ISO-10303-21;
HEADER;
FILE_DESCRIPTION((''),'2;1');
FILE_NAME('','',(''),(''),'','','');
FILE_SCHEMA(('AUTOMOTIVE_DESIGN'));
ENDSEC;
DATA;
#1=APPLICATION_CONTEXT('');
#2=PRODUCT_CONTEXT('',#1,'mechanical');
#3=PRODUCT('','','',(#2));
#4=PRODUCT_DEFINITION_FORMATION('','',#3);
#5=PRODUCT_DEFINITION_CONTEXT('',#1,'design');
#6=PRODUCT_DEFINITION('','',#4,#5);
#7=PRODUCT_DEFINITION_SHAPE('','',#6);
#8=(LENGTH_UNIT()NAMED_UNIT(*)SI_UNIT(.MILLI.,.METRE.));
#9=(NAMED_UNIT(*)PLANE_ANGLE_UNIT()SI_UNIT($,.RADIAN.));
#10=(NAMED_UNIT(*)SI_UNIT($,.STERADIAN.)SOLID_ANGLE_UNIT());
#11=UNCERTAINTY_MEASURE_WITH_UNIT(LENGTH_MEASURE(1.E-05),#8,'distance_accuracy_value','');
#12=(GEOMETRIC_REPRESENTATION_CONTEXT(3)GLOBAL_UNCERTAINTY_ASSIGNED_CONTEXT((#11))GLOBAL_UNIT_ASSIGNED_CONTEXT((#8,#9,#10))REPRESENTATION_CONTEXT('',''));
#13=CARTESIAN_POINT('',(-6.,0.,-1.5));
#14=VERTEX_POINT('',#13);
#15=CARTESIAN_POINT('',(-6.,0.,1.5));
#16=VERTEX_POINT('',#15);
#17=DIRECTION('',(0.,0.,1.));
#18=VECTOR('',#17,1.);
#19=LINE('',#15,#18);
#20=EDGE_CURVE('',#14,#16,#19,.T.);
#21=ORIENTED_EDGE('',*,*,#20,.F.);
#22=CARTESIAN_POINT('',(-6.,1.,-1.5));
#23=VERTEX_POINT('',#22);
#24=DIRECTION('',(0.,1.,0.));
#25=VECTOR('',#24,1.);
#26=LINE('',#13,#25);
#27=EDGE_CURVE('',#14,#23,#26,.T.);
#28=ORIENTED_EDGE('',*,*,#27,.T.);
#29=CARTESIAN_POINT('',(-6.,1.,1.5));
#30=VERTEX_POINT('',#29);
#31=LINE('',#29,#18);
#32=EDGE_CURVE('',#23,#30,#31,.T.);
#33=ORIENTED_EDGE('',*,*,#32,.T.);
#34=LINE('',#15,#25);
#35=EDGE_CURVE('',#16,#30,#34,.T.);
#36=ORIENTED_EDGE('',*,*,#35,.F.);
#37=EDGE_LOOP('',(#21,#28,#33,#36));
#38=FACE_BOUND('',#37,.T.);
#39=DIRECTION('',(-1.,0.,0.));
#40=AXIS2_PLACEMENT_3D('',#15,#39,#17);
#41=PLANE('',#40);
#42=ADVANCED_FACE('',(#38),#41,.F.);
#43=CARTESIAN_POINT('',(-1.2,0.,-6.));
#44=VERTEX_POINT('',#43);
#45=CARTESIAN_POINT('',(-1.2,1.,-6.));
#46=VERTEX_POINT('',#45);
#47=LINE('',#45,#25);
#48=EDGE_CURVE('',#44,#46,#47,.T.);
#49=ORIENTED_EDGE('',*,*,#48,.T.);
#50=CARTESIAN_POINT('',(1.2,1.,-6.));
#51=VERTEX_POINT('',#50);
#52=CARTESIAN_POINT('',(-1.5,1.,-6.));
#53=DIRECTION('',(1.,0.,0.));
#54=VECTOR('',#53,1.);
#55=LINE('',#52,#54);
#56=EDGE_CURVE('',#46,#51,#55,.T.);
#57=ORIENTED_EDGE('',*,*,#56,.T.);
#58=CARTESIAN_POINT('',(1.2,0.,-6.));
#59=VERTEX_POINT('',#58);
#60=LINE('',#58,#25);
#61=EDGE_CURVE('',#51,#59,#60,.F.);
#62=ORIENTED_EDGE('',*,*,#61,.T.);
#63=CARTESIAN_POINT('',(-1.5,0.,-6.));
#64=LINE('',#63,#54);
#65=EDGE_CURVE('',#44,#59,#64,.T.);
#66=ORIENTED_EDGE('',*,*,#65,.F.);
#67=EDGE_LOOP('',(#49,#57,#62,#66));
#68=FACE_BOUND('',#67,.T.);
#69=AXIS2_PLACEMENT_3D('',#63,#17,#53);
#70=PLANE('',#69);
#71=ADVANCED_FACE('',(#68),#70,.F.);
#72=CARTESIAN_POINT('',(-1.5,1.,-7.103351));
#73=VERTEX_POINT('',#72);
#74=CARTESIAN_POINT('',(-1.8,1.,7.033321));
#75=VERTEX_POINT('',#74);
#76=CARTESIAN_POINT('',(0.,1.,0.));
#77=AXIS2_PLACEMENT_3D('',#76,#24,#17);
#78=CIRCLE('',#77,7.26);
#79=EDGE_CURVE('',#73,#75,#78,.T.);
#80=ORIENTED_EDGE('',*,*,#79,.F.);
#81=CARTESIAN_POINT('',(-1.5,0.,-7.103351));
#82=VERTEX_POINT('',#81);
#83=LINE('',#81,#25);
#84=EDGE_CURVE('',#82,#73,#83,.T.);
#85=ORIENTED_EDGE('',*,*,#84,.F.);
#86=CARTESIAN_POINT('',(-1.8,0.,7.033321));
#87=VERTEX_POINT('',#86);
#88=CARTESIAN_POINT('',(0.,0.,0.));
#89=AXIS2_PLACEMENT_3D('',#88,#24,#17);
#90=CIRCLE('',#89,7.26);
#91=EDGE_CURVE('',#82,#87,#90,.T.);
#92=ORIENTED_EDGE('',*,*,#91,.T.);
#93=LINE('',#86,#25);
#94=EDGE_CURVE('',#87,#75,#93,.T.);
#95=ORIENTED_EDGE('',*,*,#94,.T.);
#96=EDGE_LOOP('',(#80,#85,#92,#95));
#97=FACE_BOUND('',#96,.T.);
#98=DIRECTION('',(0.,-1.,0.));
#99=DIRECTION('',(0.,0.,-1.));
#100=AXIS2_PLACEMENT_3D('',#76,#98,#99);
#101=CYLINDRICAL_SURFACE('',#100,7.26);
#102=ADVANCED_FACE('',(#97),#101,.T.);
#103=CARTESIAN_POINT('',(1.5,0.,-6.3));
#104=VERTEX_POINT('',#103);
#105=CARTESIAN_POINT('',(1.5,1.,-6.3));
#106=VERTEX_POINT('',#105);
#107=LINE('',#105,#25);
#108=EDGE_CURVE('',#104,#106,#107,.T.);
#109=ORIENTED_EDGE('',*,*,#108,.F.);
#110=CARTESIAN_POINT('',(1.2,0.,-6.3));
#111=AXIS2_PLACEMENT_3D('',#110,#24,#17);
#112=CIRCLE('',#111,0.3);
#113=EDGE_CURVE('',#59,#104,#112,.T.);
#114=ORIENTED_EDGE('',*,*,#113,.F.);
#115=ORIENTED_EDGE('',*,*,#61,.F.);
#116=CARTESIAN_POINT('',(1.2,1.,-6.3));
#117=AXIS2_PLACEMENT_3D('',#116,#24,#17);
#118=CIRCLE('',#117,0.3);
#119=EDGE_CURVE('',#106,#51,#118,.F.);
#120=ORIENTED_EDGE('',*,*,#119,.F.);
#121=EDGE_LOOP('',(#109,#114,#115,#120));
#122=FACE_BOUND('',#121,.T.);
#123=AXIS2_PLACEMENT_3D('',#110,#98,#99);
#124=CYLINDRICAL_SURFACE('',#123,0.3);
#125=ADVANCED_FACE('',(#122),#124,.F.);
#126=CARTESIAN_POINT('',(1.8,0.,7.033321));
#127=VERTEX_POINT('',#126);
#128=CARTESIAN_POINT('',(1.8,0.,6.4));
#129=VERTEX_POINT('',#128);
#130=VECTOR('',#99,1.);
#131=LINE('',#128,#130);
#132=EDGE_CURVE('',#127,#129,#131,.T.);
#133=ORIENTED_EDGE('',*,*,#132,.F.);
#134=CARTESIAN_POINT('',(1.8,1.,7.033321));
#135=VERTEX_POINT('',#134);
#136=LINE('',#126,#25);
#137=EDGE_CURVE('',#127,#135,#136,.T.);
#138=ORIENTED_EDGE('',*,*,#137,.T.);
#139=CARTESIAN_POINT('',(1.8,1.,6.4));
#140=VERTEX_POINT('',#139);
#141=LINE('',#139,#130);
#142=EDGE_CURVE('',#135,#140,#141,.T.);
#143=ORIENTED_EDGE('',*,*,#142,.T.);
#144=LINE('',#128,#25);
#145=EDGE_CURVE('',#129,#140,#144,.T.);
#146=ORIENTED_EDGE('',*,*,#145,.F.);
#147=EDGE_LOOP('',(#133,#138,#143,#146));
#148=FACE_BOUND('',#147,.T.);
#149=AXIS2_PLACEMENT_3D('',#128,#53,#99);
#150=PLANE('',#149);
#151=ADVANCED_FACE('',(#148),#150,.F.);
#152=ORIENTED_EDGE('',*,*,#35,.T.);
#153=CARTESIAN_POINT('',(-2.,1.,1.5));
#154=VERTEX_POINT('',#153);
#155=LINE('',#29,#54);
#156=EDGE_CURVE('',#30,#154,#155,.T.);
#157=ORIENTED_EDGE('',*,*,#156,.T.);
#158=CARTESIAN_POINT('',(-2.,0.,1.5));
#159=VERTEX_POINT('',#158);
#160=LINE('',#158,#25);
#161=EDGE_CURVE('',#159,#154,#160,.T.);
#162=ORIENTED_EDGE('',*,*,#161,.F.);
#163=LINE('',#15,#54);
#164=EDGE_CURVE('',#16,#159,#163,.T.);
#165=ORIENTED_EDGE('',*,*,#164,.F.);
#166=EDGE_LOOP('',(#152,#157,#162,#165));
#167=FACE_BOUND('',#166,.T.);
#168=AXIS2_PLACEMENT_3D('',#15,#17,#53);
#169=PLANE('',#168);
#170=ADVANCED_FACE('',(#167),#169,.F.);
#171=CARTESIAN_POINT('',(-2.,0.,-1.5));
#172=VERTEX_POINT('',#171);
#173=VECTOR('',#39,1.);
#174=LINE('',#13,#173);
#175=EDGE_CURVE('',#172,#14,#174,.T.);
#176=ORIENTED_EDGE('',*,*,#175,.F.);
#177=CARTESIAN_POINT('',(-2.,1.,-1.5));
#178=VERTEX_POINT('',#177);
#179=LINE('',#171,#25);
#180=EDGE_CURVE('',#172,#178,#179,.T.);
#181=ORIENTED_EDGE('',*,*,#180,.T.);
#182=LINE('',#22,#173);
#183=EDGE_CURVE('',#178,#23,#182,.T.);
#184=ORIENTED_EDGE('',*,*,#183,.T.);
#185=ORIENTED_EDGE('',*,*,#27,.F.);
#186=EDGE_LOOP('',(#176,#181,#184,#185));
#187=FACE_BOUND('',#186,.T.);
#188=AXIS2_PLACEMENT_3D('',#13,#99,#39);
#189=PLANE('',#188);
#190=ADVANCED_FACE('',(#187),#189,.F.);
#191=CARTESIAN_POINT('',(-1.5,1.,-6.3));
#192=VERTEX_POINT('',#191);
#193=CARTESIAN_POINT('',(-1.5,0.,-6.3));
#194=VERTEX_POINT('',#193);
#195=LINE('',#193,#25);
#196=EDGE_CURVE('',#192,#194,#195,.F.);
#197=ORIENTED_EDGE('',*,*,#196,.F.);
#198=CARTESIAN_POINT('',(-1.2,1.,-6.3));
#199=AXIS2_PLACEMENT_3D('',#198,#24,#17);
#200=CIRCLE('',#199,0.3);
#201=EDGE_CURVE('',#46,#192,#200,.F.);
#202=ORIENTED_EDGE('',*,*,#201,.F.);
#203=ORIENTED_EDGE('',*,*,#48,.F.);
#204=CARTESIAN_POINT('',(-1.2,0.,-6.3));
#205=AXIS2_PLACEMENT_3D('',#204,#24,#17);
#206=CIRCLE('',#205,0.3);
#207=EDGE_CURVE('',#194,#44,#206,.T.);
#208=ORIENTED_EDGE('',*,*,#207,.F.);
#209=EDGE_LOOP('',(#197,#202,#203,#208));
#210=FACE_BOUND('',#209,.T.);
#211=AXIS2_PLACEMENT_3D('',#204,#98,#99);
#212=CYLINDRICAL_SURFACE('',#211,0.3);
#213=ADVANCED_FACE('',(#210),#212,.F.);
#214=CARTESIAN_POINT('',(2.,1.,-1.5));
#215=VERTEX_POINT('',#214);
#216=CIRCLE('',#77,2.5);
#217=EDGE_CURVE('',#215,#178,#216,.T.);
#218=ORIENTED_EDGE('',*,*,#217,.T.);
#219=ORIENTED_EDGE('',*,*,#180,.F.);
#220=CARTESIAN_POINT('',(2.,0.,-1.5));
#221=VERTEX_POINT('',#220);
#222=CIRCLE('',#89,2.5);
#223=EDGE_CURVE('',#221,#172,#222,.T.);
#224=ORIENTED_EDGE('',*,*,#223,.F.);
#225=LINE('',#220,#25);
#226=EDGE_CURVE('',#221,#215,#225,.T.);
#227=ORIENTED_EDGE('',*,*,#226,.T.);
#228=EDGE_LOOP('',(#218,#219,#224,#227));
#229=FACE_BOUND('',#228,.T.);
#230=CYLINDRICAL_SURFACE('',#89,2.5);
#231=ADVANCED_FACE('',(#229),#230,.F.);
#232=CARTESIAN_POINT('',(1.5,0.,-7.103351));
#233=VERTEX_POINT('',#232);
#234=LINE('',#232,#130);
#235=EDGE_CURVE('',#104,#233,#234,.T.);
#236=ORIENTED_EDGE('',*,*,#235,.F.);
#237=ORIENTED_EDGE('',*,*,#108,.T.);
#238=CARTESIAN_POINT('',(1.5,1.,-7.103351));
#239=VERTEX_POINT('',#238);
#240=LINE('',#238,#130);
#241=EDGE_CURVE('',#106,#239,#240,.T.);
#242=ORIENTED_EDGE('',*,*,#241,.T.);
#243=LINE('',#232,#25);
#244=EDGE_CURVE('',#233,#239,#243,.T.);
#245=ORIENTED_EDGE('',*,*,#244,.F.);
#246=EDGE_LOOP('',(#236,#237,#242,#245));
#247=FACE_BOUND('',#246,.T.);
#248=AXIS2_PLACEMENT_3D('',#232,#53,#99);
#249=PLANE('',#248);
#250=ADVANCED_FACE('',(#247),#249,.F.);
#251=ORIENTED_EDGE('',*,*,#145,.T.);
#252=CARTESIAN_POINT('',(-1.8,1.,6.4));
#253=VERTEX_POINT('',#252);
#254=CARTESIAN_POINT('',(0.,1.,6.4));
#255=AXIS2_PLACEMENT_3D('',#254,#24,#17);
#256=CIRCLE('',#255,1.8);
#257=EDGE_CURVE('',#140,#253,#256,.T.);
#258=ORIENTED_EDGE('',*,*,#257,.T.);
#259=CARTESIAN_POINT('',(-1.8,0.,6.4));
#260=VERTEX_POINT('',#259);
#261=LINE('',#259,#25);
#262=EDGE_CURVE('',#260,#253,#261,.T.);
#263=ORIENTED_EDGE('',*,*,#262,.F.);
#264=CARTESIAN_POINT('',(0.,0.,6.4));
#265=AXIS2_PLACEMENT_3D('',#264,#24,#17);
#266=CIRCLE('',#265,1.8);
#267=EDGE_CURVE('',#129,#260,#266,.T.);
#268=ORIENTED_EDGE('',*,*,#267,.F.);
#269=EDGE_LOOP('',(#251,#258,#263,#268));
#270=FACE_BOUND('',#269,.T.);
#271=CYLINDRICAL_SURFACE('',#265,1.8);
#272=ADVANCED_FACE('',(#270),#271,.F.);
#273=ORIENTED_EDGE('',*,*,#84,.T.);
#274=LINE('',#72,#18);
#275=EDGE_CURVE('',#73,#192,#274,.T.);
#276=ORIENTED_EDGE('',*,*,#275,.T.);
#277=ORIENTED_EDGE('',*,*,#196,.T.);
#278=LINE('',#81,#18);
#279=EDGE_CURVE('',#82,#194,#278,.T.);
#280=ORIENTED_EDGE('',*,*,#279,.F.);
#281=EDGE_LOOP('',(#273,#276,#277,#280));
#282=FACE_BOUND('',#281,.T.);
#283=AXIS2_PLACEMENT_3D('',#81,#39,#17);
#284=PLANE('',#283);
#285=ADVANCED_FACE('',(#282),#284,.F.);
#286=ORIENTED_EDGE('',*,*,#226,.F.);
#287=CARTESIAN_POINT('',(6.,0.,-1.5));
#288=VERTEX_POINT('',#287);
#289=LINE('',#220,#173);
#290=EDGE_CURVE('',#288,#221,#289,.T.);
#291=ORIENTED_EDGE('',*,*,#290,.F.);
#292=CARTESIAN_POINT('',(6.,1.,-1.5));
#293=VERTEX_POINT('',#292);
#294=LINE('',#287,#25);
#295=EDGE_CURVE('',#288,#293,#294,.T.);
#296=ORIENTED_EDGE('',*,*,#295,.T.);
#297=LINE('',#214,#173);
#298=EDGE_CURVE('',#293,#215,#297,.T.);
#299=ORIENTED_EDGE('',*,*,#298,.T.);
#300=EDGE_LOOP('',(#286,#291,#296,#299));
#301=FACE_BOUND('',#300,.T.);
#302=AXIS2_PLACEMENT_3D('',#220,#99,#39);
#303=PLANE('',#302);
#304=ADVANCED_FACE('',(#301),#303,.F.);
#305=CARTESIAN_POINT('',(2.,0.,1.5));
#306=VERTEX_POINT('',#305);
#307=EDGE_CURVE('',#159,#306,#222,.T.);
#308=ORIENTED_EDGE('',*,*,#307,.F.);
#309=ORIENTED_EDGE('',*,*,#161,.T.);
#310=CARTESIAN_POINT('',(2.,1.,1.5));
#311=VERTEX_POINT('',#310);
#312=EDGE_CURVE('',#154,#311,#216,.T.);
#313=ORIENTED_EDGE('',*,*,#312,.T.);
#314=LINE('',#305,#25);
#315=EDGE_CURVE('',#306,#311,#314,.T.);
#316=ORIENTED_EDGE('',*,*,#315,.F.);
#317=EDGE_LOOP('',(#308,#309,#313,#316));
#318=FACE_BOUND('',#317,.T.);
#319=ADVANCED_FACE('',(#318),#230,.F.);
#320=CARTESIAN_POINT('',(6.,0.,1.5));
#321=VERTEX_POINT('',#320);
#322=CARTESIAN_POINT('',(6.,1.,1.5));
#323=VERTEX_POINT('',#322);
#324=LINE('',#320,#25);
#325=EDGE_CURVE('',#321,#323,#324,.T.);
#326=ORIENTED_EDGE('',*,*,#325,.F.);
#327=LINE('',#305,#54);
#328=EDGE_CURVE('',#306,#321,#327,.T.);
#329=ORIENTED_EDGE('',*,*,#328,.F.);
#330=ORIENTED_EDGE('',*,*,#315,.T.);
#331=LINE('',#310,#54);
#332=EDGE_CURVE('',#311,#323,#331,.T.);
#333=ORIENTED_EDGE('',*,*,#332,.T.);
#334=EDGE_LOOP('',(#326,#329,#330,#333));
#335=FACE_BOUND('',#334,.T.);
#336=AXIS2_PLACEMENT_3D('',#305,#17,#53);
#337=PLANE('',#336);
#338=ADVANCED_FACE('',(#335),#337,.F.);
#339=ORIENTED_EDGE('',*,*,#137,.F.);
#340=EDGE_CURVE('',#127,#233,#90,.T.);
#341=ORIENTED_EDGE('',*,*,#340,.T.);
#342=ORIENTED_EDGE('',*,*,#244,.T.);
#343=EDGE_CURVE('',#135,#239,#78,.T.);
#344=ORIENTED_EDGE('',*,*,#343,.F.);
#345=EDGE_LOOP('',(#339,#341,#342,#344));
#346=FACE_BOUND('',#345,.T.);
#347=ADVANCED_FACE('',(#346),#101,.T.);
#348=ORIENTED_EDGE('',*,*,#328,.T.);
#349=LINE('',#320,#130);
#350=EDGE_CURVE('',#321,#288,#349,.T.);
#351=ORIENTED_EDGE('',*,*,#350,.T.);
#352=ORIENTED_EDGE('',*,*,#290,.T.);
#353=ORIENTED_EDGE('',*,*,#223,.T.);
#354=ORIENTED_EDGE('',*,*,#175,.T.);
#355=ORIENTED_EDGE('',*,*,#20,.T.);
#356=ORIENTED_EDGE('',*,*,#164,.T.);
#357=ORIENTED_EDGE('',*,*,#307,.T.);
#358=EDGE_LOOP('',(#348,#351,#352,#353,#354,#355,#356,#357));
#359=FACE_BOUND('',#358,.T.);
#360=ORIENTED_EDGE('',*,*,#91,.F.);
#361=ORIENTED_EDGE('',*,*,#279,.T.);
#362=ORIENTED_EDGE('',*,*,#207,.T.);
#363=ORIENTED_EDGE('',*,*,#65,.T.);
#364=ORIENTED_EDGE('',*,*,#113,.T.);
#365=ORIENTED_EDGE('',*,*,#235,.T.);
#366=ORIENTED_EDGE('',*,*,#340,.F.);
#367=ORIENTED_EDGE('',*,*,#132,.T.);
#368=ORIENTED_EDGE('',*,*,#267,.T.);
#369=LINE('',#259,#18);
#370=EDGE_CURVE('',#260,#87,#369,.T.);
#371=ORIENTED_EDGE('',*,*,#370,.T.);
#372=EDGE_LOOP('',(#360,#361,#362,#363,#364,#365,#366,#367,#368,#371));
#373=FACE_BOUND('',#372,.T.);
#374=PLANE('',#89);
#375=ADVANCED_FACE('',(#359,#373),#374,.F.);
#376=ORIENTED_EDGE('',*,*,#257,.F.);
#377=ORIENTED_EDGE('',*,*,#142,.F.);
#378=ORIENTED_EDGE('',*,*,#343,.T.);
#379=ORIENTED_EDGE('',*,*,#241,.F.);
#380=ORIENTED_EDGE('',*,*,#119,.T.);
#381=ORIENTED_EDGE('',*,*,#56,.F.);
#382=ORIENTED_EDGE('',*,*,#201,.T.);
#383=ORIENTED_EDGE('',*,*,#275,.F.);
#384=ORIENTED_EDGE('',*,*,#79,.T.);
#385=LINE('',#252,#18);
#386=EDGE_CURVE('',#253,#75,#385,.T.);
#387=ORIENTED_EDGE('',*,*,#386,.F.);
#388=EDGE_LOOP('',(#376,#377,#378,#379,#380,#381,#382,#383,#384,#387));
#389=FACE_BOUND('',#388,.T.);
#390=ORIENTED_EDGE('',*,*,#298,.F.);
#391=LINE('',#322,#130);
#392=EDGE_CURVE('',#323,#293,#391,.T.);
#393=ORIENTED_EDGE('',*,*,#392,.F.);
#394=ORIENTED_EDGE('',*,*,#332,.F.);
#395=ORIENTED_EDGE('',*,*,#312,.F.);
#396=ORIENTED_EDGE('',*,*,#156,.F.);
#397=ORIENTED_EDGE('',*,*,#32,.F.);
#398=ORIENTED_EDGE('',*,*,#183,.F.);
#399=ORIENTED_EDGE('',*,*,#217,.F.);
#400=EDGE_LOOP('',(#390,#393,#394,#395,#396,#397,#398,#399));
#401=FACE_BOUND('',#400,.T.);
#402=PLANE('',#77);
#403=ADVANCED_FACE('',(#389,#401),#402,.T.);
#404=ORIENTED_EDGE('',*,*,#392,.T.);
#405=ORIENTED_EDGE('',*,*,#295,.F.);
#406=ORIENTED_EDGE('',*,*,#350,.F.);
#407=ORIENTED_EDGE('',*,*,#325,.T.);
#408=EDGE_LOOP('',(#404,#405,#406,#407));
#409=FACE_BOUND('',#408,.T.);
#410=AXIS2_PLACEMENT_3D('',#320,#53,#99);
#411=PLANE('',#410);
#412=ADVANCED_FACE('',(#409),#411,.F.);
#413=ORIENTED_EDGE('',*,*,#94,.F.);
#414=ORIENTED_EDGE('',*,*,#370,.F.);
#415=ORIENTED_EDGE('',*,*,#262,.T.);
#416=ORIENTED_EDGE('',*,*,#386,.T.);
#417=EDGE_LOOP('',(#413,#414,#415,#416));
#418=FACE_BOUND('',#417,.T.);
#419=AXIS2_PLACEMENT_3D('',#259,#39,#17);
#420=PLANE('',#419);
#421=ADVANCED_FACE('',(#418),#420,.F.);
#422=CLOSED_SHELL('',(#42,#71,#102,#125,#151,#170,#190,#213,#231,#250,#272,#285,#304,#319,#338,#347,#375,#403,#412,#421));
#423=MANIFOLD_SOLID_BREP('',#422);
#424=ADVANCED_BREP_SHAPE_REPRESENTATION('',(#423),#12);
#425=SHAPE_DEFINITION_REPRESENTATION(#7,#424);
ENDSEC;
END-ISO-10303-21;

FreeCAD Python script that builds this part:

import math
import FreeCAD as App
import Part
import Sketcher
Q = App.Units.Quantity


def edges_at(feature, points):
    """Names of the edges that pass closest to the given points."""
    edges = feature.Shape.Edges
    near = lambda p: min(range(len(edges)), key=lambda i: edges[i].distToShape(Part.Vertex(*p))[0])
    return sorted({f"Edge{near(p) + 1}" for p in points})

doc = App.newDocument("Part")
body = doc.addObject("PartDesign::Body", "Body")

sketch1 = body.newObject("Sketcher::SketchObject", "Sketch")
sketch1.AttachmentSupport = (doc.getObject("XZ_Plane"), [""])
sketch1.MapMode = "FlatFace"
sketch1.addGeometry(Part.Circle(App.Vector(0, 0, 0), App.Vector(0, 0, 1), 7.26), False)
sketch1.addConstraint(Sketcher.Constraint("Coincident", 0, 3, -1, 1))
sketch1.addConstraint(Sketcher.Constraint("Diameter", 0, Q("14.52 mm")))
pad1 = body.newObject("PartDesign::Pad", "Pad")
pad1.Profile = sketch1
pad1.Length = 1
pad1.Reversed = True

sketch2 = body.newObject("Sketcher::SketchObject", "Sketch001")
sketch2.AttachmentSupport = (doc.getObject("XZ_Plane"), [""])
sketch2.MapMode = "FlatFace"
sketch2.AttachmentOffset = App.Placement(App.Vector(0, 0, -1), App.Rotation())
sketch2.addGeometry(Part.LineSegment(App.Vector(-1.5, -7.103351, 0), App.Vector(-1.5, -6, 0)), False)
sketch2.addGeometry(Part.LineSegment(App.Vector(-1.5, -6, 0), App.Vector(1.5, -6, 0)), False)
sketch2.addGeometry(Part.LineSegment(App.Vector(1.5, -6, 0), App.Vector(1.5, -7.103351, 0)), False)
sketch2.addGeometry(Part.ArcOfCircle(Part.Circle(App.Vector(0, 0, 0), App.Vector(0, 0, 1), 7.26), math.radians(-101.923855), math.radians(-78.076145)), False)
sketch2.addConstraint(Sketcher.Constraint("Coincident", 0, 2, 1, 1))
sketch2.addConstraint(Sketcher.Constraint("Coincident", 1, 2, 2, 1))
sketch2.addConstraint(Sketcher.Constraint("Coincident", 2, 2, 3, 2))
sketch2.addConstraint(Sketcher.Constraint("Coincident", 3, 1, 0, 1))
sketch2.addConstraint(Sketcher.Constraint("Vertical", 0))
sketch2.addConstraint(Sketcher.Constraint("Horizontal", 1))
sketch2.addConstraint(Sketcher.Constraint("Vertical", 2))
sketch2.addConstraint(Sketcher.Constraint("Coincident", 3, 3, -1, 1))
sketch2.addConstraint(Sketcher.Constraint("Horizontal", 2, 2, 3, 1))
sketch2.addConstraint(Sketcher.Constraint("DistanceX", 1, 1, 1, 2, Q("3 mm")))
sketch2.addConstraint(Sketcher.Constraint("Radius", 3, Q("7.26 mm")))
sketch2.addConstraint(Sketcher.Constraint("DistanceY", 0, 2, -1, 1, Q("6 mm")))
pocket1 = body.newObject("PartDesign::Pocket", "Pocket")
pocket1.Profile = sketch2
pocket1.Type = "ThroughAll"
pocket1.Reversed = True

sketch3 = body.newObject("Sketcher::SketchObject", "Sketch002")
sketch3.AttachmentSupport = (doc.getObject("XZ_Plane"), [""])
sketch3.MapMode = "FlatFace"
sketch3.AttachmentOffset = App.Placement(App.Vector(0, 0, -1), App.Rotation())
sketch3.addGeometry(Part.LineSegment(App.Vector(6, -1.5, 0), App.Vector(2, -1.5, 0)), False)
sketch3.addGeometry(Part.ArcOfCircle(Part.Circle(App.Vector(0, 0, 0), App.Vector(0, 0, 1), 2.5), math.radians(-143.130102), math.radians(-36.869898)), False)
sketch3.addGeometry(Part.LineSegment(App.Vector(-2, -1.5, 0), App.Vector(-6, -1.5, 0)), False)
sketch3.addGeometry(Part.LineSegment(App.Vector(-6, -1.5, 0), App.Vector(-6, 1.5, 0)), False)
sketch3.addGeometry(Part.LineSegment(App.Vector(-6, 1.5, 0), App.Vector(-2, 1.5, 0)), False)
sketch3.addGeometry(Part.ArcOfCircle(Part.Circle(App.Vector(0, 0, 0), App.Vector(0, 0, 1), 2.5), math.radians(36.869898), math.radians(143.130102)), False)
sketch3.addGeometry(Part.LineSegment(App.Vector(2, 1.5, 0), App.Vector(6, 1.5, 0)), False)
sketch3.addGeometry(Part.LineSegment(App.Vector(6, 1.5, 0), App.Vector(6, -1.5, 0)), False)
sketch3.addConstraint(Sketcher.Constraint("Coincident", 0, 2, 1, 2))
sketch3.addConstraint(Sketcher.Constraint("Coincident", 1, 1, 2, 1))
sketch3.addConstraint(Sketcher.Constraint("Coincident", 2, 2, 3, 1))
sketch3.addConstraint(Sketcher.Constraint("Coincident", 3, 2, 4, 1))
sketch3.addConstraint(Sketcher.Constraint("Coincident", 4, 2, 5, 2))
sketch3.addConstraint(Sketcher.Constraint("Coincident", 5, 1, 6, 1))
sketch3.addConstraint(Sketcher.Constraint("Coincident", 6, 2, 7, 1))
sketch3.addConstraint(Sketcher.Constraint("Coincident", 7, 2, 0, 1))
sketch3.addConstraint(Sketcher.Constraint("Horizontal", 0))
sketch3.addConstraint(Sketcher.Constraint("Horizontal", 2))
sketch3.addConstraint(Sketcher.Constraint("Vertical", 3))
sketch3.addConstraint(Sketcher.Constraint("Horizontal", 4))
sketch3.addConstraint(Sketcher.Constraint("Horizontal", 6))
sketch3.addConstraint(Sketcher.Constraint("Vertical", 7))
sketch3.addConstraint(Sketcher.Constraint("Coincident", 1, 3, -1, 1))
sketch3.addConstraint(Sketcher.Constraint("Coincident", 5, 3, -1, 1))
sketch3.addConstraint(Sketcher.Constraint("Equal", 1, 5))
sketch3.addConstraint(Sketcher.Constraint("Symmetric", 2, 2, 6, 2, -1, 1))
sketch3.addConstraint(Sketcher.Constraint("Horizontal", 0, 2, 1, 1))
sketch3.addConstraint(Sketcher.Constraint("Horizontal", 4, 2, 5, 1))
sketch3.addConstraint(Sketcher.Constraint("Radius", 1, Q("2.5 mm")))
sketch3.addConstraint(Sketcher.Constraint("DistanceX", 0, 2, 0, 1, Q("4 mm")))
sketch3.addConstraint(Sketcher.Constraint("DistanceY", 3, 1, 3, 2, Q("3 mm")))
pocket2 = body.newObject("PartDesign::Pocket", "Pocket001")
pocket2.Profile = sketch3
pocket2.Type = "ThroughAll"
pocket2.Reversed = True

sketch4 = body.newObject("Sketcher::SketchObject", "Sketch003")
sketch4.AttachmentSupport = (doc.getObject("XZ_Plane"), [""])
sketch4.MapMode = "FlatFace"
sketch4.AttachmentOffset = App.Placement(App.Vector(0, 0, -1), App.Rotation())
sketch4.addGeometry(Part.LineSegment(App.Vector(-1.8, 6.4, 0), App.Vector(-1.8, 7.033321, 0)), False)
sketch4.addGeometry(Part.ArcOfCircle(Part.Circle(App.Vector(0, 0, 0), App.Vector(0, 0, 1), 7.26), math.radians(75.644716), math.radians(104.355284)), False)
sketch4.addGeometry(Part.LineSegment(App.Vector(1.8, 7.033321, 0), App.Vector(1.8, 6.4, 0)), False)
sketch4.addGeometry(Part.ArcOfCircle(Part.Circle(App.Vector(0, 6.4, 0), App.Vector(0, 0, 1), 1.8), math.radians(180), math.radians(360)), False)
sketch4.addConstraint(Sketcher.Constraint("Coincident", 0, 2, 1, 2))
sketch4.addConstraint(Sketcher.Constraint("Coincident", 1, 1, 2, 1))
sketch4.addConstraint(Sketcher.Constraint("Tangent", 2, 2, 3, 2))
sketch4.addConstraint(Sketcher.Constraint("Tangent", 3, 1, 0, 1))
sketch4.addConstraint(Sketcher.Constraint("Vertical", 0))
sketch4.addConstraint(Sketcher.Constraint("Vertical", 2))
sketch4.addConstraint(Sketcher.Constraint("Coincident", 1, 3, -1, 1))
sketch4.addConstraint(Sketcher.Constraint("PointOnObject", 3, 3, -2))
sketch4.addConstraint(Sketcher.Constraint("Radius", 3, Q("1.8 mm")))
sketch4.addConstraint(Sketcher.Constraint("Radius", 1, Q("7.26 mm")))
sketch4.addConstraint(Sketcher.Constraint("DistanceY", -1, 1, 3, 3, Q("6.4 mm")))
pocket3 = body.newObject("PartDesign::Pocket", "Pocket002")
pocket3.Profile = sketch4
pocket3.Type = "ThroughAll"
pocket3.Reversed = True
doc.recompute()

fillet = body.newObject("PartDesign::Fillet", "Fillet")
fillet.Base = (pocket3, edges_at(pocket3, [(1.5, 0.5, -6), (-1.5, 0.5, -6)]))
fillet.Radius = 0.3

doc.recompute()
